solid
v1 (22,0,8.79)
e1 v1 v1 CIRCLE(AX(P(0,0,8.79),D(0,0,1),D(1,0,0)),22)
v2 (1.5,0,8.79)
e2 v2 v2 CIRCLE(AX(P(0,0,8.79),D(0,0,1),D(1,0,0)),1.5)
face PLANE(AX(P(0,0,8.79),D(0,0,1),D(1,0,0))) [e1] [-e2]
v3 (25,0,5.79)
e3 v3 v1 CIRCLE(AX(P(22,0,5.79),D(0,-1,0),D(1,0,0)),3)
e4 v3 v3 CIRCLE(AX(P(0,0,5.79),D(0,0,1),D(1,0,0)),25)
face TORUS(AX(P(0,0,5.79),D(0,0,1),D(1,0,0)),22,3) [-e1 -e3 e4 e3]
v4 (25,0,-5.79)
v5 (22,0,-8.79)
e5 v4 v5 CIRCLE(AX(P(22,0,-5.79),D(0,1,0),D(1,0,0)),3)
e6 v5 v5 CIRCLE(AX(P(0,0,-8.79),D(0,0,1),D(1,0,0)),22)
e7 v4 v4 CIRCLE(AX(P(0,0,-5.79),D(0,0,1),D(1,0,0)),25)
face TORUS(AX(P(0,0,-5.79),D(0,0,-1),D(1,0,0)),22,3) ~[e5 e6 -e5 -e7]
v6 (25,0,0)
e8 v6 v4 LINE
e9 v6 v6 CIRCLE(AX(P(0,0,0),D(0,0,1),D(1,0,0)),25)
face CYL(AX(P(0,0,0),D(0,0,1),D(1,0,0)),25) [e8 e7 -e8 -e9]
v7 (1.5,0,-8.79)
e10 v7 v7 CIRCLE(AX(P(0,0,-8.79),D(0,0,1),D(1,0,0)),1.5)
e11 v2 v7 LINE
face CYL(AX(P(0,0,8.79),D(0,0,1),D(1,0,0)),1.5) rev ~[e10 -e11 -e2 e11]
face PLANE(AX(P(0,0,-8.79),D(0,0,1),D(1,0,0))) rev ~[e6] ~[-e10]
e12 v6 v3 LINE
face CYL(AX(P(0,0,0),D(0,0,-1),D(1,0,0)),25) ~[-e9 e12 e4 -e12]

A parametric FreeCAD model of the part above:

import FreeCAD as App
import Part
import Sketcher
from FreeCAD import Vector
Q = App.Units.Quantity


def edges_at(feature, points):
    """Names of the edges that pass closest to the given points."""
    edges = feature.Shape.Edges
    near = lambda p: min(range(len(edges)), key=lambda i: edges[i].distToShape(Part.Vertex(*p))[0])
    return sorted({f"Edge{near(p) + 1}" for p in points})

doc = App.newDocument("Part")
params = doc.addObject("Spreadsheet::Sheet", "Params")
for row, (alias, value) in enumerate([
    ("sketch1_diameter", "50 mm"),
    ("pad1_length", "17.58 mm"),
    ("fillet_radius", "3 mm"),
    ("sketch2_diameter", "3 mm"),
], start=1):
    params.set(f"A{row}", alias)
    params.set(f"B{row}", "=" + value)
    params.setAlias(f"B{row}", alias)

body = doc.addObject("PartDesign::Body", "Body")

sketch1 = body.newObject("Sketcher::SketchObject", "Sketch")
sketch1.AttachmentSupport = (doc.getObject("XY_Plane"), [""])
sketch1.MapMode = "FlatFace"
sketch1.addGeometry(Part.Circle(Vector(0, 0, 0), Vector(0, 0, 1), 25), False)
sketch1.addConstraint([
    Sketcher.Constraint("Coincident", 0, 3, -1, 1),
    Sketcher.Constraint("Diameter", 0, Q("50 mm")),
])
sketch1.setExpression("Constraints[1]", "Params.sketch1_diameter")
pad1 = body.newObject("PartDesign::Pad", "Pad")
pad1.Profile = sketch1
pad1.setExpression("Length", "Params.pad1_length")
pad1.Midplane = True
doc.recompute()

fillet = body.newObject("PartDesign::Fillet", "Fillet")
fillet.Base = (pad1, edges_at(pad1, [(-25, 0, 8.79), (-25, 0, -8.79)]))
fillet.setExpression("Radius", "Params.fillet_radius")

sketch2 = body.newObject("Sketcher::SketchObject", "Sketch001")
sketch2.AttachmentSupport = (doc.getObject("XY_Plane"), [""])
sketch2.MapMode = "FlatFace"
sketch2.AttachmentOffset = App.Placement(Vector(0, 0, 8.79), App.Rotation())
sketch2.addGeometry(Part.Circle(Vector(0, 0, 0), Vector(0, 0, 1), 1.5), False)
sketch2.addConstraint([
    Sketcher.Constraint("Coincident", 0, 3, -1, 1),
    Sketcher.Constraint("Diameter", 0, Q("3 mm")),
])
sketch2.setExpression("Constraints[1]", "Params.sketch2_diameter")
pocket1 = body.newObject("PartDesign::Pocket", "Pocket")
pocket1.Profile = sketch2
pocket1.Type = "ThroughAll"
pocket1.Midplane = True

doc.recompute()
